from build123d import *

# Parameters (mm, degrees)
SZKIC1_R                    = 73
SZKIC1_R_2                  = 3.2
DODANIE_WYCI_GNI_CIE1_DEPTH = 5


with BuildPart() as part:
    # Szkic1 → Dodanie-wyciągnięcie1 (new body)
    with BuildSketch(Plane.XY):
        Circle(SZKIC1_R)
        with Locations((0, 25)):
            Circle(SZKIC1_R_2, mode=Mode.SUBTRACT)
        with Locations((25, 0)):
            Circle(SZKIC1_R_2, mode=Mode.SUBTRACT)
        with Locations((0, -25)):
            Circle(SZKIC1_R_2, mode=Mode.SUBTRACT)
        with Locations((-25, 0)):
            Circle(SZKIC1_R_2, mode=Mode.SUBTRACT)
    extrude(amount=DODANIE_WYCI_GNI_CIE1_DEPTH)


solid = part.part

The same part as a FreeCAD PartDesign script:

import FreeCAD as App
import Part
import Sketcher

V = App.Vector

doc = App.newDocument("Part")
body = doc.addObject("PartDesign::Body", "Body")

sketch1 = body.newObject("Sketcher::SketchObject", "Sketch")
sketch1.AttachmentSupport = (doc.getObject("XY_Plane"), [""])
sketch1.MapMode = "FlatFace"
sketch1.addGeometry([
    Part.Circle(V(0, 0, 0), V(0, 0, 1), 73),
    Part.Circle(V(0, -25, 0), V(0, 0, 1), 3.2),
    Part.Circle(V(-25, 0, 0), V(0, 0, 1), 3.2),
    Part.Circle(V(25, 0, 0), V(0, 0, 1), 3.2),
    Part.Circle(V(0, 25, 0), V(0, 0, 1), 3.2),
], False)
sketch1.addConstraint([
    Sketcher.Constraint("Coincident", 0, 3, -1, 1),
    Sketcher.Constraint("Equal", 1, 2),
    Sketcher.Constraint("Equal", 2, 3),
    Sketcher.Constraint("Equal", 3, 4),
    Sketcher.Constraint("Symmetric", 2, 3, 3, 3, -1, 1),
    Sketcher.Constraint("Symmetric", 1, 3, 4, 3, -1, 1),
    Sketcher.Constraint("PointOnObject", 1, 3, -2),
    Sketcher.Constraint("PointOnObject", 2, 3, -1),
    Sketcher.Constraint("Diameter", 0, 146.0),
    Sketcher.Constraint("Diameter", 1, 6.4),
    Sketcher.Constraint("DistanceY", 1, 3, -1, 1, 25.0),
    Sketcher.Constraint("DistanceX", 2, 3, -1, 1, 25.0),
])
pad1 = body.newObject("PartDesign::Pad", "Pad")
pad1.Profile = sketch1
pad1.Length = 5

doc.recompute()
